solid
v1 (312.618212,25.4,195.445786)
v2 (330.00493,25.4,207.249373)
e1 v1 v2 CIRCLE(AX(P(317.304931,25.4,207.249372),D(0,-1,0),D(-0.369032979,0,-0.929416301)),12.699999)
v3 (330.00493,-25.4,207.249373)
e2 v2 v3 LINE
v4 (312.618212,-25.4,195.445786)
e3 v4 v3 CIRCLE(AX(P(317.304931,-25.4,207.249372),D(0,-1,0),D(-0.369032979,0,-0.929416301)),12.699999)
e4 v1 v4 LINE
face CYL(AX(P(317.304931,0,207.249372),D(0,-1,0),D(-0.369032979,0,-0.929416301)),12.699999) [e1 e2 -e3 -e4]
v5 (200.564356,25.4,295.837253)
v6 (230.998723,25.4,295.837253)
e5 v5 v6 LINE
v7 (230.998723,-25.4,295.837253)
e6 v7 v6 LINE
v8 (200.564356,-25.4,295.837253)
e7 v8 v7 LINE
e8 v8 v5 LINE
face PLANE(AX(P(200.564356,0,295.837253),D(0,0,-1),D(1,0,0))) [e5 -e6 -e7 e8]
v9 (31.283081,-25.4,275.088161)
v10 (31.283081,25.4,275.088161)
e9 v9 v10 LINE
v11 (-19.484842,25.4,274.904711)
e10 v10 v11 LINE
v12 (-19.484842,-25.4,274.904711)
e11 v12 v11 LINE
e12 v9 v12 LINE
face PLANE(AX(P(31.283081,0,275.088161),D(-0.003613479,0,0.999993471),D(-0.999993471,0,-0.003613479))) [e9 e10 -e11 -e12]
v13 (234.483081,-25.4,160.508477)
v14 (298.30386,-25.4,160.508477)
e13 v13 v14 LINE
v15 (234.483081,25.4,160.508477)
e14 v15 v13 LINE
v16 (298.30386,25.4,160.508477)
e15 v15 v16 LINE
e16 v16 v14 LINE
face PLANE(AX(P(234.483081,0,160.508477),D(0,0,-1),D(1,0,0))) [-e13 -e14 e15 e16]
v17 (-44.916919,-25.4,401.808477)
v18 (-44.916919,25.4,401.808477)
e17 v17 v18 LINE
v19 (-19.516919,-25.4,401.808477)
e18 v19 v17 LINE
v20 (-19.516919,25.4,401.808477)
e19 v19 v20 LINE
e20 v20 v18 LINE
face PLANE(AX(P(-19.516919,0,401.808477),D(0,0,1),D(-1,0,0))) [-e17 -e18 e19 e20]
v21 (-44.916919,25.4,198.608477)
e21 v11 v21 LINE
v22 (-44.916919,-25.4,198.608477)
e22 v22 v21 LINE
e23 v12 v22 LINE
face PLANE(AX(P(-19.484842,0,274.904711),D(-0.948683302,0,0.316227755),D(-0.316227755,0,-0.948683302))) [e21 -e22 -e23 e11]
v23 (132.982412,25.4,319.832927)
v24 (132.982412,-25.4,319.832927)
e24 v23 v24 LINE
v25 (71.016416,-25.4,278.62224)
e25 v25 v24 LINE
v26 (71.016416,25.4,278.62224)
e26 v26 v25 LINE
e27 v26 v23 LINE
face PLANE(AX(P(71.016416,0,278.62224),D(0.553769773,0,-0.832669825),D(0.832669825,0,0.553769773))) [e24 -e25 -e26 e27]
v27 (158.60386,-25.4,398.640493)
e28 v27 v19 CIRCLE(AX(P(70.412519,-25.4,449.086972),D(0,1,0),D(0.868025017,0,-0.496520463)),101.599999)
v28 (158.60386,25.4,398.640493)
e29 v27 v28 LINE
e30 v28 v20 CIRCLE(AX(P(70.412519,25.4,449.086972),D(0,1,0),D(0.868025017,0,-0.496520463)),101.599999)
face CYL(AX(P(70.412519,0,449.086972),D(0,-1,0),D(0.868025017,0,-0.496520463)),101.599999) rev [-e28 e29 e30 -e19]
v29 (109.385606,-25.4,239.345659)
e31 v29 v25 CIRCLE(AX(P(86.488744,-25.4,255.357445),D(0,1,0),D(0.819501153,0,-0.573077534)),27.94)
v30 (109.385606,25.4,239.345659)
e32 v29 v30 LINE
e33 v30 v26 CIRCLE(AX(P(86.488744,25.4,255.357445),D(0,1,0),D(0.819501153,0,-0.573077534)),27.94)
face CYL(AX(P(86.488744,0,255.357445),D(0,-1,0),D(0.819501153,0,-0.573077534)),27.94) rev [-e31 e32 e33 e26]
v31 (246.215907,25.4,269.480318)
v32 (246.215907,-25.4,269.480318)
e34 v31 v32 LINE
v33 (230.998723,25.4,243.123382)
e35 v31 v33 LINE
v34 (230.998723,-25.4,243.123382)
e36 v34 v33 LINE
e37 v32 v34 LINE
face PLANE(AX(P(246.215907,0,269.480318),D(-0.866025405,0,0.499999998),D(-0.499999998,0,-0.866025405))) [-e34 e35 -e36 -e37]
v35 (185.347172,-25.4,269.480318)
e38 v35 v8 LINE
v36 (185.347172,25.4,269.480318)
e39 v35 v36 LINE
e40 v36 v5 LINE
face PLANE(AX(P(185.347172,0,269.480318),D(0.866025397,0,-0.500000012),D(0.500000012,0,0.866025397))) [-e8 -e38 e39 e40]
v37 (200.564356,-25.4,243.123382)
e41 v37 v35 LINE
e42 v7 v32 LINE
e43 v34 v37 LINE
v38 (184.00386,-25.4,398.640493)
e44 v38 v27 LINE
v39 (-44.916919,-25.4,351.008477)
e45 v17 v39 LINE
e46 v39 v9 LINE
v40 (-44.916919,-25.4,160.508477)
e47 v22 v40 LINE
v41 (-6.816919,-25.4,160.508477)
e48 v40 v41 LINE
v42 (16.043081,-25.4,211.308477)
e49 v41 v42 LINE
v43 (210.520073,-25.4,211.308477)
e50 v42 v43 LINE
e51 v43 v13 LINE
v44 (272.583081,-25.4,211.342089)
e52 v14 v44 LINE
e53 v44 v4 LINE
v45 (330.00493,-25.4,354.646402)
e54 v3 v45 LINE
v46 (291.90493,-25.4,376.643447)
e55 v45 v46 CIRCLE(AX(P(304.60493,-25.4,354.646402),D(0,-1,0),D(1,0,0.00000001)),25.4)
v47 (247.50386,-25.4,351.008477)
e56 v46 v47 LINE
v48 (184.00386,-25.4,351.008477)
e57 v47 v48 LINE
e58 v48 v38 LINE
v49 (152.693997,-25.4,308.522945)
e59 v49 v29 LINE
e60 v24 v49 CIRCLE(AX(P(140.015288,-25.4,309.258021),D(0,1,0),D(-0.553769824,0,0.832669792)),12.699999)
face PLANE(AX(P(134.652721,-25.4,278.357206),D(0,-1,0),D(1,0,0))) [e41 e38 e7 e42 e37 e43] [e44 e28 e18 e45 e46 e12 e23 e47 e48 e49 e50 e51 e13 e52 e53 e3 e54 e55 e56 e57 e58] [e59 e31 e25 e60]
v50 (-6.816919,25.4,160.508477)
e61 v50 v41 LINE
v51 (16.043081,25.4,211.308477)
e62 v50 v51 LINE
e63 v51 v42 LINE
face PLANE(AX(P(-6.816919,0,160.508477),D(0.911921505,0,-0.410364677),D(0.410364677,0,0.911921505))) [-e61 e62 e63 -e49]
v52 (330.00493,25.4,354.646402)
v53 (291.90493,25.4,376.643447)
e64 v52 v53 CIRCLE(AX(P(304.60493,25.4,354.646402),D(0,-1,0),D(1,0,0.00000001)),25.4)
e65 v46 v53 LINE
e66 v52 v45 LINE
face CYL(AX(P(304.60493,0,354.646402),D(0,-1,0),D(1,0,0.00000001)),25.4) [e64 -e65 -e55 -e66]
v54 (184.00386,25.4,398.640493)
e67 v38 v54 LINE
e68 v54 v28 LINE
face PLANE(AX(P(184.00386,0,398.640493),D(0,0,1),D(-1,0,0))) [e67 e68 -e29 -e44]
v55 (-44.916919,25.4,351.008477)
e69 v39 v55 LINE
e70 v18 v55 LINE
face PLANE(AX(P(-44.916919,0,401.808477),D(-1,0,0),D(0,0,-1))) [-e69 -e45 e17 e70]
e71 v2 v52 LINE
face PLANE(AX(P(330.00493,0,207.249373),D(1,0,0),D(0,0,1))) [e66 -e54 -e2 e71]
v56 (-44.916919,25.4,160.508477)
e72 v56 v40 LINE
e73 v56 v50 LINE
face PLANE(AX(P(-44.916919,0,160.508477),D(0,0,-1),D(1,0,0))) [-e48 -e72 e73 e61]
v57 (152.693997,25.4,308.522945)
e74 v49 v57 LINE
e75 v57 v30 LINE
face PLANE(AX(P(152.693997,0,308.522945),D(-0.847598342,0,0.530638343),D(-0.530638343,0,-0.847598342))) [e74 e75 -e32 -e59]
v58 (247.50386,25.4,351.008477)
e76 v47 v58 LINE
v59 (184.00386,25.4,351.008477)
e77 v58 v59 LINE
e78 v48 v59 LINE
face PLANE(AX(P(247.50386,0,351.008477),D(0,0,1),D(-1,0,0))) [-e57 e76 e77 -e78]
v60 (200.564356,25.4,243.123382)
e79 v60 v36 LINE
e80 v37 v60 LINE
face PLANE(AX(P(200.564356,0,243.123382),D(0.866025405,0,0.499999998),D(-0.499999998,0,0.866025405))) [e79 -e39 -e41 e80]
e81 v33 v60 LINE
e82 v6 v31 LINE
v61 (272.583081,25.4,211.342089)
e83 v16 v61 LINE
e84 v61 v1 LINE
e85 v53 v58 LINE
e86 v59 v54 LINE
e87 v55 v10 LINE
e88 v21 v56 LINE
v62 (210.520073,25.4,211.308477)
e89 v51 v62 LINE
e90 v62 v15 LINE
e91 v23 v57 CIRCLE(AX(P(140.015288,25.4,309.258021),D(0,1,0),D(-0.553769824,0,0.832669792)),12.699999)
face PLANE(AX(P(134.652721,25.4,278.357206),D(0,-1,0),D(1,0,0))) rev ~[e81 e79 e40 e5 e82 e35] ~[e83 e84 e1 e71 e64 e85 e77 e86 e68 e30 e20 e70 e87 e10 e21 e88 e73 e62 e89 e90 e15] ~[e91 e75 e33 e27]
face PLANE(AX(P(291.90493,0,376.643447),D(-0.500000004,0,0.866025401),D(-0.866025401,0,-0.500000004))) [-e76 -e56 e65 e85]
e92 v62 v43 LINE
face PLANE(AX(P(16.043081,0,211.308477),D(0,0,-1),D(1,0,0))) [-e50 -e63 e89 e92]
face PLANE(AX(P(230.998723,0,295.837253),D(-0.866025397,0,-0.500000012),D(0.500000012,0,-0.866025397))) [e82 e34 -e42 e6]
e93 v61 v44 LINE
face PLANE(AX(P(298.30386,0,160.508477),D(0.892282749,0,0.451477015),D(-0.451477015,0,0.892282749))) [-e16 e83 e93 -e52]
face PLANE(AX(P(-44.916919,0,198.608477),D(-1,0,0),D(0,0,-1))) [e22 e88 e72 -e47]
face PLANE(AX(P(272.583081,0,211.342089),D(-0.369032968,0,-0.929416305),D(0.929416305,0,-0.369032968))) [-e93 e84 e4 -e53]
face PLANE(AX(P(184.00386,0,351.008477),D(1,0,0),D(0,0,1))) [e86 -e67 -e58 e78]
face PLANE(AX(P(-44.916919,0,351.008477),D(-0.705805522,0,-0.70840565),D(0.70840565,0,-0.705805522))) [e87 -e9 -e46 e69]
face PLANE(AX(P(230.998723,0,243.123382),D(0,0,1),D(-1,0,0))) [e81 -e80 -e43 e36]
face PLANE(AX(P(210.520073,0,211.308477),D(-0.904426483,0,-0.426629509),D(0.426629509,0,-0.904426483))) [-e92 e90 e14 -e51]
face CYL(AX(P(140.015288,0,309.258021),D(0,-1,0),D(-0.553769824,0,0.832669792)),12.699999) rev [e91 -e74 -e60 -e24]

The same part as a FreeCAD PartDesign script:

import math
import FreeCAD as App
import Part
import Sketcher

V = App.Vector
Q = App.Units.Quantity

doc = App.newDocument("Part")
body = doc.addObject("PartDesign::Body", "Body")

sketch1 = doc.addObject("Sketcher::SketchObject", "Sketch")
body.addObject(sketch1)
sketch1.AttachmentSupport = (doc.XZ_Plane, [""])
sketch1.MapMode = "FlatFace"
sketch1.addGeometry([
    Part.LineSegment(V(-45, 199, 0), V(-45, 161, 0)),
    Part.LineSegment(V(-45, 161, 0), V(-7, 161, 0)),
    Part.LineSegment(V(-7, 161, 0), V(16, 211, 0)),
    Part.LineSegment(V(16, 211, 0), V(211, 211, 0)),
    Part.LineSegment(V(211, 211, 0), V(234, 161, 0)),
    Part.LineSegment(V(234, 161, 0), V(298, 161, 0)),
    Part.LineSegment(V(298, 161, 0), V(273, 211, 0)),
    Part.LineSegment(V(273, 211, 0), V(313, 195, 0)),
    Part.ArcOfCircle(Part.Circle(V(317, 207, 0), V(0, 0, 1), 13), math.radians(-112), math.radians(0)),
    Part.LineSegment(V(330, 207, 0), V(330, 355, 0)),
    Part.ArcOfCircle(Part.Circle(V(305, 355, 0), V(0, 0, 1), 25), math.radians(0), math.radians(120)),
    Part.LineSegment(V(292, 377, 0), V(248, 351, 0)),
    Part.LineSegment(V(248, 351, 0), V(184, 351, 0)),
    Part.LineSegment(V(184, 351, 0), V(184, 399, 0)),
    Part.LineSegment(V(184, 399, 0), V(159, 399, 0)),
    Part.ArcOfCircle(Part.Circle(V(70, 449, 0), V(0, 0, 1), 102), math.radians(-152), math.radians(-30)),
    Part.LineSegment(V(-20, 402, 0), V(-45, 402, 0)),
    Part.LineSegment(V(-45, 402, 0), V(-45, 351, 0)),
    Part.LineSegment(V(-45, 351, 0), V(31, 275, 0)),
    Part.LineSegment(V(31, 275, 0), V(-19, 275, 0)),
    Part.LineSegment(V(-19, 275, 0), V(-45, 199, 0)),
    Part.LineSegment(V(231, 296, 0), V(246, 269, 0)),
    Part.LineSegment(V(246, 269, 0), V(231, 243, 0)),
    Part.LineSegment(V(231, 243, 0), V(201, 243, 0)),
    Part.LineSegment(V(201, 243, 0), V(185, 269, 0)),
    Part.LineSegment(V(185, 269, 0), V(201, 296, 0)),
    Part.LineSegment(V(201, 296, 0), V(231, 296, 0)),
    Part.ArcOfCircle(Part.Circle(V(86, 255, 0), V(0, 0, 1), 28), math.radians(124), math.radians(325)),
    Part.LineSegment(V(71, 279, 0), V(133, 320, 0)),
    Part.ArcOfCircle(Part.Circle(V(140, 309, 0), V(0, 0, 1), 13), math.radians(-3), math.radians(124)),
    Part.LineSegment(V(153, 309, 0), V(109, 239, 0)),
], False)
sketch1.addConstraint([
    Sketcher.Constraint("Coincident", 0, 2, 1, 1),
    Sketcher.Constraint("Coincident", 1, 2, 2, 1),
    Sketcher.Constraint("Coincident", 2, 2, 3, 1),
    Sketcher.Constraint("Coincident", 3, 2, 4, 1),
    Sketcher.Constraint("Coincident", 4, 2, 5, 1),
    Sketcher.Constraint("Coincident", 5, 2, 6, 1),
    Sketcher.Constraint("Coincident", 6, 2, 7, 1),
    Sketcher.Constraint("Tangent", 7, 2, 8, 1),
    Sketcher.Constraint("Tangent", 8, 2, 9, 1),
    Sketcher.Constraint("Tangent", 9, 2, 10, 1),
    Sketcher.Constraint("Tangent", 10, 2, 11, 1),
    Sketcher.Constraint("Coincident", 11, 2, 12, 1),
    Sketcher.Constraint("Coincident", 12, 2, 13, 1),
    Sketcher.Constraint("Coincident", 13, 2, 14, 1),
    Sketcher.Constraint("Coincident", 14, 2, 15, 2),
    Sketcher.Constraint("Coincident", 15, 1, 16, 1),
    Sketcher.Constraint("Coincident", 16, 2, 17, 1),
    Sketcher.Constraint("Coincident", 17, 2, 18, 1),
    Sketcher.Constraint("Coincident", 18, 2, 19, 1),
    Sketcher.Constraint("Coincident", 19, 2, 20, 1),
    Sketcher.Constraint("Coincident", 20, 2, 0, 1),
    Sketcher.Constraint("Coincident", 21, 2, 22, 1),
    Sketcher.Constraint("Coincident", 22, 2, 23, 1),
    Sketcher.Constraint("Coincident", 23, 2, 24, 1),
    Sketcher.Constraint("Coincident", 24, 2, 25, 1),
    Sketcher.Constraint("Coincident", 25, 2, 26, 1),
    Sketcher.Constraint("Coincident", 26, 2, 21, 1),
    Sketcher.Constraint("Tangent", 27, 1, 28, 1),
    Sketcher.Constraint("Tangent", 28, 2, 29, 2),
    Sketcher.Constraint("Coincident", 29, 1, 30, 1),
    Sketcher.Constraint("Coincident", 30, 2, 27, 2),
    Sketcher.Constraint("Vertical", 0),
    Sketcher.Constraint("Horizontal", 1),
    Sketcher.Constraint("Horizontal", 3),
    Sketcher.Constraint("Horizontal", 5),
    Sketcher.Constraint("Vertical", 9),
    Sketcher.Constraint("Horizontal", 12),
    Sketcher.Constraint("Vertical", 13),
    Sketcher.Constraint("Horizontal", 14),
    Sketcher.Constraint("Horizontal", 16),
    Sketcher.Constraint("Vertical", 17),
    Sketcher.Constraint("Horizontal", 23),
    Sketcher.Constraint("Horizontal", 26),
    Sketcher.Constraint("Equal", 8, 29),
    Sketcher.Constraint("Perpendicular", 11, 21),
    Sketcher.Constraint("Parallel", 21, 24),
    Sketcher.Constraint("Parallel", 22, 25),
    Sketcher.Constraint("Horizontal", 1, 2, 4, 2),
    Sketcher.Constraint("Horizontal", 12, 2, 17, 2),
    Sketcher.Constraint("Horizontal", 21, 2, 24, 2),
    Sketcher.Constraint("Vertical", 0, 2, 16, 2),
    Sketcher.Constraint("Vertical", 23, 2, 25, 2),
    Sketcher.Constraint("Vertical", 22, 2, 26, 2),
    Sketcher.Constraint("Equal", 14, 16),
    Sketcher.Constraint("Equal", 1, 0),
    Sketcher.Constraint("Radius", 10, Q("1 in")),
    Sketcher.Constraint("Radius", 15, Q("4 in")),
    Sketcher.Constraint("Radius", 8, Q("0.5 in")),
    Sketcher.Constraint("Radius", 27, Q("1.1 in")),
    Sketcher.Constraint("DistanceX", 14, 2, 14, 1, Q("1 in")),
    Sketcher.Constraint("DistanceY", 17, 2, 17, 1, Q("2 in")),
    Sketcher.Constraint("DistanceX", 1, 1, 1, 2, Q("1.5 in")),
    Sketcher.Constraint("DistanceX", 12, 2, 12, 1, Q("2.5 in")),
    Sketcher.Constraint("Angle", 11, Q("-150 deg")),
    Sketcher.Constraint("DistanceY", 1, 2, 2, 2, Q("2 in")),
    Sketcher.Constraint("DistanceX", 17, 2, 18, 2, Q("3 in")),
    Sketcher.Constraint("DistanceX", 1, 2, 2, 2, Q("0.9 in")),
    Sketcher.Constraint("DistanceX", 4, 2, 6, 2, Q("1.5 in")),
    Sketcher.Constraint("DistanceY", 2, 2, 15, 1, Q("7.5 in")),
    Sketcher.Constraint("DistanceX", 15, 3, 13, 2, Q("4.4721 in")),
    Sketcher.Constraint("DistanceY", 27, 3, 18, 2, Q("0.7767998 in")),
    Sketcher.Constraint("DistanceX", 3, 1, 3, 2, 194.476992),
    Sketcher.Constraint("DistanceX", 5, 1, 5, 2, 63.820779),
    Sketcher.Constraint("DistanceY", 9, 1, 9, 2, 147.397029),
    Sketcher.Constraint("DistanceY", -1, 1, 10, 3, 354.646402),
    Sketcher.Constraint("DistanceY", 8, 3, 15, 3, 241.837599),
    Sketcher.Constraint("DistanceX", 24, 2, 3, 2, 25.172901),
    Sketcher.Constraint("Distance", 4, 56.168192),
    Sketcher.Constraint("Distance", 11, 51.26994),
    Sketcher.Constraint("Distance", 18, 107.565489),
    Sketcher.Constraint("Distance", 20, 80.423292),
    Sketcher.Constraint("Distance", 22, 30.434368),
    Sketcher.Constraint("DistanceX", 23, 2, 23, 1, 30.434367),
    Sketcher.Constraint("DistanceX", -1, 1, 8, 3, 317.304931),
    Sketcher.Constraint("DistanceX", -1, 1, 29, 3, 140.015288),
    Sketcher.Constraint("DistanceY", -1, 1, 29, 3, 309.258021),
    Sketcher.Constraint("DistanceY", -1, 1, 6, 2, 211.342089),
    Sketcher.Constraint("DistanceY", -1, 1, 19, 2, 274.904711),
    Sketcher.Constraint("DistanceY", -1, 1, 21, 2, 269.480318),
    Sketcher.Constraint("DistanceY", -1, 1, 27, 1, 278.62224),
    Sketcher.Constraint("DistanceY", -1, 1, 30, 2, 239.345659),
    Sketcher.Constraint("DistanceX", 29, 3, 29, 1, 12.678709),
])
pad1 = doc.addObject("PartDesign::Pad", "Pad")
body.addObject(pad1)
pad1.Profile = sketch1
pad1.Length = Q("2 in")
pad1.Midplane = True

doc.recompute()
